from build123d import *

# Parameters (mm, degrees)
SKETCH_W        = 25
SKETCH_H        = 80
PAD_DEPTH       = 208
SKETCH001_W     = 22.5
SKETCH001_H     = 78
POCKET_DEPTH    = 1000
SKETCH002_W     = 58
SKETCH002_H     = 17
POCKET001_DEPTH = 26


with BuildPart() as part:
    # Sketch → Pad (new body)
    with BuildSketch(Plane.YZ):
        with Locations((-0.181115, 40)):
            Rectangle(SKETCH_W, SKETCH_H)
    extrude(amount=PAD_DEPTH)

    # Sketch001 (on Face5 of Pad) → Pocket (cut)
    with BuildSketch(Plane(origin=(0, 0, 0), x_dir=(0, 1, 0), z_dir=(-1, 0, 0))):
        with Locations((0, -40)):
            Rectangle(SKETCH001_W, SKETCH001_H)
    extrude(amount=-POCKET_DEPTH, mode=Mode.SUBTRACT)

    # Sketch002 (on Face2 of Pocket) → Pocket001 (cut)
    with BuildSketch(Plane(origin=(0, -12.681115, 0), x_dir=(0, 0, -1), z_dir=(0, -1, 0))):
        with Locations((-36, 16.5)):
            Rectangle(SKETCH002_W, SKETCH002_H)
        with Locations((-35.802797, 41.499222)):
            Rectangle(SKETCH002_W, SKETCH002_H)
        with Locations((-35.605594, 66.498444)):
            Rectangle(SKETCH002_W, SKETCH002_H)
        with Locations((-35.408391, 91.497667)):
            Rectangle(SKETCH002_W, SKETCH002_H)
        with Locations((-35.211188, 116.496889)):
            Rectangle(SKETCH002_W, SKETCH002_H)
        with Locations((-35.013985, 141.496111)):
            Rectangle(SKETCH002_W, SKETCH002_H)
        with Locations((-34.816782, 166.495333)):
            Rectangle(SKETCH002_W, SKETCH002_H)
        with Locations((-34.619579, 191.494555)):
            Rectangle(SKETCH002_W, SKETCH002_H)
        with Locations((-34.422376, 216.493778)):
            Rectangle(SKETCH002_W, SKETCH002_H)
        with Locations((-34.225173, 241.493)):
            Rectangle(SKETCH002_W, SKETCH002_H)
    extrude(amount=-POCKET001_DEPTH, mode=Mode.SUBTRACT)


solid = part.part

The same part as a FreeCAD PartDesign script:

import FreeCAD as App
import Part
import Sketcher
from FreeCAD import Vector


def add_polygon(sketch, points):
    """Adds a closed chain of lines whose ends are joined by coincident constraints."""
    first, n = sketch.GeometryCount, len(points)
    for a, b in zip(points, points[1:] + points[:1]):
        sketch.addGeometry(Part.LineSegment(App.Vector(*a, 0), App.Vector(*b, 0)), False)
    for i in range(n):
        sketch.addConstraint(Sketcher.Constraint("Coincident", first + i, 2, first + (i + 1) % n, 1))

doc = App.newDocument("Part")
body = doc.addObject("PartDesign::Body", "Body")

# Sketch on YZ plane
sketch1 = body.newObject("Sketcher::SketchObject", "Sketch")
sketch1.AttachmentSupport = (doc.getObject("YZ_Plane"), [""])
sketch1.MapMode = "FlatFace"
add_polygon(sketch1, [(-12.681115, 80), (-12.681115, 0), (12.318885, 0), (12.318885, 80)])  # lines 0-3
sketch1.addConstraint([
    Sketcher.Constraint("Vertical", 0),
    Sketcher.Constraint("Horizontal", 1),
    Sketcher.Constraint("Vertical", 2),
    Sketcher.Constraint("Horizontal", 3),
    Sketcher.Constraint("PointOnObject", 0, 2, -1),
    Sketcher.Constraint("DistanceX", 1, 1, 1, 2, 25.0),
    Sketcher.Constraint("DistanceY", 0, 2, 0, 1, 80.0),
    Sketcher.Constraint("DistanceX", 0, 2, -1, 1, 12.681115),
])
pad1 = body.newObject("PartDesign::Pad", "Pad")
pad1.Profile = sketch1
pad1.Length = 208

# Sketch on YZ plane
sketch2 = body.newObject("Sketcher::SketchObject", "Sketch001")
sketch2.AttachmentSupport = (doc.getObject("YZ_Plane"), [""])
sketch2.MapMode = "FlatFace"
add_polygon(sketch2, [(-11.25, 1), (-11.25, 79), (11.25, 79), (11.25, 1)])  # lines 0-3
sketch2.addConstraint([
    Sketcher.Constraint("Vertical", 0),
    Sketcher.Constraint("Horizontal", 1),
    Sketcher.Constraint("Vertical", 2),
    Sketcher.Constraint("Horizontal", 3),
    Sketcher.Constraint("DistanceY", 0, 1, 0, 2, 78.0),
    Sketcher.Constraint("DistanceX", 1, 1, 1, 2, 22.5),
    Sketcher.Constraint("DistanceY", -1, 1, 0, 2, 79.0),
    Sketcher.Constraint("DistanceX", 0, 2, -1, 1, 11.25),
])
pocket1 = body.newObject("PartDesign::Pocket", "Pocket")
pocket1.Profile = sketch2
pocket1.Length = 1000
pocket1.Reversed = True

# Sketch on XZ plane
sketch3 = body.newObject("Sketcher::SketchObject", "Sketch002")
sketch3.AttachmentSupport = (doc.getObject("XZ_Plane"), [""])
sketch3.MapMode = "FlatFace"
sketch3.AttachmentOffset = App.Placement(Vector(0, 0, 12.681115), App.Rotation())
add_polygon(sketch3, [(25, 65), (8, 65), (8, 7), (25, 7)])  # lines 0-3
add_polygon(sketch3, [(49.999222, 64.802797), (32.999222, 64.802797), (32.999222, 6.802797), (49.999222, 6.802797)])  # lines 4-7
add_polygon(sketch3, [(74.998444, 64.605594), (57.998444, 64.605594), (57.998444, 6.605594), (74.998444, 6.605594)])  # lines 8-11
add_polygon(sketch3, [(99.997667, 64.408391), (82.997667, 64.408391), (82.997667, 6.408391), (99.997667, 6.408391)])  # lines 12-15
add_polygon(sketch3, [(124.996889, 64.211188), (107.996889, 64.211188), (107.996889, 6.211188), (124.996889, 6.211188)])  # lines 16-19
add_polygon(sketch3, [(149.996111, 64.013985), (132.996111, 64.013985), (132.996111, 6.013985), (149.996111, 6.013985)])  # lines 20-23
add_polygon(sketch3, [(174.995333, 63.816782), (157.995333, 63.816782), (157.995333, 5.816782), (174.995333, 5.816782)])  # lines 24-27
add_polygon(sketch3, [(199.994555, 63.619579), (182.994555, 63.619579), (182.994555, 5.619579), (199.994555, 5.619579)])  # lines 28-31
add_polygon(sketch3, [(224.993778, 63.422376), (207.993778, 63.422376), (207.993778, 5.422376), (224.993778, 5.422376)])  # lines 32-35
add_polygon(sketch3, [(249.993, 63.225173), (232.993, 63.225173), (232.993, 5.225173), (249.993, 5.225173)])  # lines 36-39
sketch3.addConstraint([
    Sketcher.Constraint("Horizontal", 0),
    Sketcher.Constraint("Vertical", 1),
    Sketcher.Constraint("Horizontal", 2),
    Sketcher.Constraint("Vertical", 3),
    Sketcher.Constraint("Horizontal", 4),
    Sketcher.Constraint("Vertical", 5),
    Sketcher.Constraint("Horizontal", 6),
    Sketcher.Constraint("Vertical", 7),
    Sketcher.Constraint("Horizontal", 8),
    Sketcher.Constraint("Vertical", 9),
    Sketcher.Constraint("Horizontal", 10),
    Sketcher.Constraint("Vertical", 11),
    Sketcher.Constraint("Horizontal", 12),
    Sketcher.Constraint("Vertical", 13),
    Sketcher.Constraint("Horizontal", 14),
    Sketcher.Constraint("Vertical", 15),
    Sketcher.Constraint("Horizontal", 16),
    Sketcher.Constraint("Vertical", 17),
    Sketcher.Constraint("Horizontal", 18),
    Sketcher.Constraint("Vertical", 19),
    Sketcher.Constraint("Horizontal", 20),
    Sketcher.Constraint("Vertical", 21),
    Sketcher.Constraint("Horizontal", 22),
    Sketcher.Constraint("Vertical", 23),
    Sketcher.Constraint("Horizontal", 24),
    Sketcher.Constraint("Vertical", 25),
    Sketcher.Constraint("Horizontal", 26),
    Sketcher.Constraint("Vertical", 27),
    Sketcher.Constraint("Horizontal", 28),
    Sketcher.Constraint("Vertical", 29),
    Sketcher.Constraint("Horizontal", 30),
    Sketcher.Constraint("Vertical", 31),
    Sketcher.Constraint("Horizontal", 32),
    Sketcher.Constraint("Vertical", 33),
    Sketcher.Constraint("Horizontal", 34),
    Sketcher.Constraint("Vertical", 35),
    Sketcher.Constraint("Horizontal", 36),
    Sketcher.Constraint("Vertical", 37),
    Sketcher.Constraint("Horizontal", 38),
    Sketcher.Constraint("Vertical", 39),
    Sketcher.Constraint("Equal", 2, 4),
    Sketcher.Constraint("Equal", 6, 8),
    Sketcher.Constraint("Equal", 10, 12),
    Sketcher.Constraint("Equal", 14, 16),
    Sketcher.Constraint("Equal", 18, 20),
    Sketcher.Constraint("Equal", 22, 24),
    Sketcher.Constraint("Equal", 26, 28),
    Sketcher.Constraint("Equal", 30, 32),
    Sketcher.Constraint("Equal", 34, 36),
    Sketcher.Constraint("Equal", 3, 5),
    Sketcher.Constraint("Equal", 7, 9),
    Sketcher.Constraint("Equal", 11, 13),
    Sketcher.Constraint("Equal", 15, 17),
    Sketcher.Constraint("Equal", 19, 21),
    Sketcher.Constraint("Equal", 23, 25),
    Sketcher.Constraint("Equal", 27, 29),
    Sketcher.Constraint("Equal", 31, 33),
    Sketcher.Constraint("Equal", 35, 37),
    Sketcher.Constraint("DistanceX", 0, 2, 0, 1, 17.0),
    Sketcher.Constraint("DistanceY", 1, 2, 1, 1, 58.0),
    Sketcher.Constraint("DistanceX", -1, 1, 0, 2, 8.0),
    Sketcher.Constraint("DistanceY", -1, 1, 0, 2, 65.0),
    Sketcher.Constraint("DistanceX", -1, 1, 36, 2, 232.993),
    Sketcher.Constraint("DistanceY", -1, 1, 12, 2, 64.408391),
    Sketcher.Constraint("DistanceX", -1, 1, 16, 2, 107.996889),
    Sketcher.Constraint("DistanceY", -1, 1, 16, 2, 64.211188),
    Sketcher.Constraint("DistanceX", -1, 1, 20, 2, 132.996111),
    Sketcher.Constraint("DistanceY", -1, 1, 28, 2, 63.619579),
    Sketcher.Constraint("DistanceX", -1, 1, 32, 2, 207.993778),
    Sketcher.Constraint("DistanceX", 7, 2, 8, 2, 7.999222),
    Sketcher.Constraint("DistanceX", 15, 2, 16, 2, 7.999222),
    Sketcher.Constraint("DistanceY", 16, 2, 7, 2, 0.591609),
    Sketcher.Constraint("DistanceY", 20, 2, 11, 2, 0.591609),
    Sketcher.Constraint("DistanceX", 23, 2, 24, 2, 7.999222),
    Sketcher.Constraint("DistanceY", 24, 2, 15, 2, 0.591609),
    Sketcher.Constraint("DistanceY", 32, 2, 23, 2, 0.591609),
    Sketcher.Constraint("DistanceY", 36, 2, 27, 2, 0.591609),
    Sketcher.Constraint("DistanceX", -1, 1, 4, 2, 32.999222),
    Sketcher.Constraint("DistanceY", -1, 1, 8, 2, 64.605594),
    Sketcher.Constraint("DistanceX", -1, 1, 28, 2, 182.994555),
])
pocket2 = body.newObject("PartDesign::Pocket", "Pocket001")
pocket2.Profile = sketch3
pocket2.Length = 26

doc.recompute()
